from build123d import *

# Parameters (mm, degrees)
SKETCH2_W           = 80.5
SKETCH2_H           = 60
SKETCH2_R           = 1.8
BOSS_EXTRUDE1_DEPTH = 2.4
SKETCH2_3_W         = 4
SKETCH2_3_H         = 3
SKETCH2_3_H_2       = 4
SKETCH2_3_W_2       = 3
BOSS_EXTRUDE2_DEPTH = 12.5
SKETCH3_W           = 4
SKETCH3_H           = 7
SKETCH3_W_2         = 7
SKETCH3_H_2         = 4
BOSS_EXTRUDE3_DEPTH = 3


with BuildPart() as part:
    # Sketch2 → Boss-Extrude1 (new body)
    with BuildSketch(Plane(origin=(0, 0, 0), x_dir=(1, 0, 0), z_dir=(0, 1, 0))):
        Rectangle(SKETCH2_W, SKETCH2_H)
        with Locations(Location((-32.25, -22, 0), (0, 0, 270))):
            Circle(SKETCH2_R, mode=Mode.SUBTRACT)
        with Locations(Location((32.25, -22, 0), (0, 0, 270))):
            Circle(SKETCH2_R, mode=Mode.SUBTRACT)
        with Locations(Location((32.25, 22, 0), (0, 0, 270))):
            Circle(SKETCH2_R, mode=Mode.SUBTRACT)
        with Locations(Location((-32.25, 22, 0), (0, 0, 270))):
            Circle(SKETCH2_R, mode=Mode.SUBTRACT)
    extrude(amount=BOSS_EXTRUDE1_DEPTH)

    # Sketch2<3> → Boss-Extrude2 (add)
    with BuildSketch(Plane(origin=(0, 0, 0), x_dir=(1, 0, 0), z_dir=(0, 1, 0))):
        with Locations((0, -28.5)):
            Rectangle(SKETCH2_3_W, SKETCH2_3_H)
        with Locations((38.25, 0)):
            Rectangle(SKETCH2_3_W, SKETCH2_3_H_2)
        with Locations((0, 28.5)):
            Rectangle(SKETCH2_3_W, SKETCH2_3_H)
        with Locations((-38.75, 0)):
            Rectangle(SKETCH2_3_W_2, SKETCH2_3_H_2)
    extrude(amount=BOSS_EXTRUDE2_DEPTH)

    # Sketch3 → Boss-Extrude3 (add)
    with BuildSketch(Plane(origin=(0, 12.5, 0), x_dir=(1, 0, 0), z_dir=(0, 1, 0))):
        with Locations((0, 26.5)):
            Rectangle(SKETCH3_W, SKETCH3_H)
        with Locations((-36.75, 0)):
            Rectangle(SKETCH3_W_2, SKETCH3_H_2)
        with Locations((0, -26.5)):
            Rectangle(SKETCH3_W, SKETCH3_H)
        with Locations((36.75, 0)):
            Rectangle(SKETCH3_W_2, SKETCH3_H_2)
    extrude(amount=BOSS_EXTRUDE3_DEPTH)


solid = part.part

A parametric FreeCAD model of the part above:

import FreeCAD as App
import Part
import Sketcher
from FreeCAD import Vector
Q = App.Units.Quantity

doc = App.newDocument("Part")
body = doc.addObject("PartDesign::Body", "Body")

# Sketch on XZ plane
sketch1 = body.newObject("Sketcher::SketchObject", "Sketch")
sketch1.AttachmentSupport = (doc.getObject("XZ_Plane"), [""])
sketch1.MapMode = "FlatFace"
sketch1.addGeometry([
    Part.LineSegment(Vector(-40.25, -30, 0), Vector(-40.25, 30, 0)),  # 0
    Part.LineSegment(Vector(-40.25, 30, 0), Vector(40.25, 30, 0)),  # 1
    Part.LineSegment(Vector(40.25, 30, 0), Vector(40.25, -30, 0)),  # 2
    Part.LineSegment(Vector(40.25, -30, 0), Vector(-40.25, -30, 0)),  # 3
    Part.Circle(Vector(-32.25, 22, 0), Vector(0, 0, 1), 1.8),  # 4
    Part.Circle(Vector(32.25, 22, 0), Vector(0, 0, 1), 1.8),  # 5
    Part.Circle(Vector(-32.25, -22, 0), Vector(0, 0, 1), 1.8),  # 6
    Part.Circle(Vector(32.25, -22, 0), Vector(0, 0, 1), 1.8),  # 7
], False)
sketch1.addConstraint([
    Sketcher.Constraint("Coincident", 0, 2, 1, 1),
    Sketcher.Constraint("Coincident", 1, 2, 2, 1),
    Sketcher.Constraint("Coincident", 2, 2, 3, 1),
    Sketcher.Constraint("Coincident", 3, 2, 0, 1),
    Sketcher.Constraint("Vertical", 0),
    Sketcher.Constraint("Horizontal", 1),
    Sketcher.Constraint("Vertical", 2),
    Sketcher.Constraint("Horizontal", 3),
    Sketcher.Constraint("Equal", 4, 5),
    Sketcher.Constraint("Equal", 5, 6),
    Sketcher.Constraint("Equal", 6, 7),
    Sketcher.Constraint("Symmetric", 5, 3, 6, 3, -1, 1),
    Sketcher.Constraint("Symmetric", 4, 3, 7, 3, -1, 1),
    Sketcher.Constraint("Symmetric", 0, 2, 2, 2, -1, 1),
    Sketcher.Constraint("Symmetric", 4, 3, 5, 3, -2),
    Sketcher.Constraint("Diameter", 4, Q("3.6 mm")),
    Sketcher.Constraint("DistanceY", 0, 1, 0, 2, Q("60 mm")),
    Sketcher.Constraint("DistanceX", 1, 1, 1, 2, Q("80.5 mm")),
    Sketcher.Constraint("DistanceY", -1, 1, 4, 3, Q("22 mm")),
    Sketcher.Constraint("DistanceX", 0, 2, 4, 3, Q("8 mm")),
])
pad1 = body.newObject("PartDesign::Pad", "Pad")
pad1.Profile = sketch1
pad1.Length = 2.4
pad1.Reversed = True

# Sketch on XZ plane
sketch2 = body.newObject("Sketcher::SketchObject", "Sketch001")
sketch2.AttachmentSupport = (doc.getObject("XZ_Plane"), [""])
sketch2.MapMode = "FlatFace"
sketch2.addGeometry([
    Part.LineSegment(Vector(-2, 27, 0), Vector(-2, 30, 0)),  # 0
    Part.LineSegment(Vector(-2, 30, 0), Vector(2, 30, 0)),  # 1
    Part.LineSegment(Vector(2, 30, 0), Vector(2, 27, 0)),  # 2
    Part.LineSegment(Vector(2, 27, 0), Vector(-2, 27, 0)),  # 3
    Part.LineSegment(Vector(36.25, -2, 0), Vector(36.25, 2, 0)),  # 4
    Part.LineSegment(Vector(36.25, 2, 0), Vector(40.25, 2, 0)),  # 5
    Part.LineSegment(Vector(40.25, 2, 0), Vector(40.25, -2, 0)),  # 6
    Part.LineSegment(Vector(40.25, -2, 0), Vector(36.25, -2, 0)),  # 7
    Part.LineSegment(Vector(-2, -30, 0), Vector(-2, -27, 0)),  # 8
    Part.LineSegment(Vector(-2, -27, 0), Vector(2, -27, 0)),  # 9
    Part.LineSegment(Vector(2, -27, 0), Vector(2, -30, 0)),  # 10
    Part.LineSegment(Vector(2, -30, 0), Vector(-2, -30, 0)),  # 11
    Part.LineSegment(Vector(-40.25, -2, 0), Vector(-40.25, 2, 0)),  # 12
    Part.LineSegment(Vector(-40.25, 2, 0), Vector(-37.25, 2, 0)),  # 13
    Part.LineSegment(Vector(-37.25, 2, 0), Vector(-37.25, -2, 0)),  # 14
    Part.LineSegment(Vector(-37.25, -2, 0), Vector(-40.25, -2, 0)),  # 15
], False)
sketch2.addConstraint([
    Sketcher.Constraint("Coincident", 0, 2, 1, 1),
    Sketcher.Constraint("Coincident", 1, 2, 2, 1),
    Sketcher.Constraint("Coincident", 2, 2, 3, 1),
    Sketcher.Constraint("Coincident", 3, 2, 0, 1),
    Sketcher.Constraint("Coincident", 4, 2, 5, 1),
    Sketcher.Constraint("Coincident", 5, 2, 6, 1),
    Sketcher.Constraint("Coincident", 6, 2, 7, 1),
    Sketcher.Constraint("Coincident", 7, 2, 4, 1),
    Sketcher.Constraint("Coincident", 8, 2, 9, 1),
    Sketcher.Constraint("Coincident", 9, 2, 10, 1),
    Sketcher.Constraint("Coincident", 10, 2, 11, 1),
    Sketcher.Constraint("Coincident", 11, 2, 8, 1),
    Sketcher.Constraint("Coincident", 12, 2, 13, 1),
    Sketcher.Constraint("Coincident", 13, 2, 14, 1),
    Sketcher.Constraint("Coincident", 14, 2, 15, 1),
    Sketcher.Constraint("Coincident", 15, 2, 12, 1),
    Sketcher.Constraint("Vertical", 0),
    Sketcher.Constraint("Horizontal", 1),
    Sketcher.Constraint("Vertical", 2),
    Sketcher.Constraint("Horizontal", 3),
    Sketcher.Constraint("Vertical", 4),
    Sketcher.Constraint("Horizontal", 5),
    Sketcher.Constraint("Vertical", 6),
    Sketcher.Constraint("Horizontal", 7),
    Sketcher.Constraint("Vertical", 8),
    Sketcher.Constraint("Horizontal", 9),
    Sketcher.Constraint("Vertical", 10),
    Sketcher.Constraint("Horizontal", 11),
    Sketcher.Constraint("Vertical", 12),
    Sketcher.Constraint("Horizontal", 13),
    Sketcher.Constraint("Vertical", 14),
    Sketcher.Constraint("Horizontal", 15),
    Sketcher.Constraint("Symmetric", 2, 2, 8, 2, -1, 1),
    Sketcher.Constraint("Symmetric", 0, 2, 10, 2, -1, 1),
    Sketcher.Constraint("Symmetric", 6, 2, 12, 2, -1, 1),
    Sketcher.Constraint("Horizontal", 5, 2, 12, 2),
    Sketcher.Constraint("Horizontal", 7, 2, 14, 2),
    Sketcher.Constraint("Vertical", 3, 2, 8, 2),
    Sketcher.Constraint("Equal", 3, 5),
    Sketcher.Constraint("Equal", 15, 0),
    Sketcher.Constraint("Equal", 11, 4),
    Sketcher.Constraint("DistanceX", 1, 1, 1, 2, Q("4 mm")),
    Sketcher.Constraint("DistanceX", 13, 1, 13, 2, Q("3 mm")),
    Sketcher.Constraint("DistanceY", -1, 1, 0, 2, Q("30 mm")),
    Sketcher.Constraint("DistanceX", -1, 1, 4, 2, Q("36.25 mm")),
])
pad2 = body.newObject("PartDesign::Pad", "Pad001")
pad2.Profile = sketch2
pad2.Length = 12.5
pad2.Reversed = True

# Sketch on XZ plane
sketch3 = body.newObject("Sketcher::SketchObject", "Sketch002")
sketch3.AttachmentSupport = (doc.getObject("XZ_Plane"), [""])
sketch3.MapMode = "FlatFace"
sketch3.AttachmentOffset = App.Placement(Vector(0, 0, -12.5), App.Rotation())
sketch3.addGeometry([
    Part.LineSegment(Vector(-2, -30, 0), Vector(-2, -23, 0)),  # 0
    Part.LineSegment(Vector(-2, -23, 0), Vector(2, -23, 0)),  # 1
    Part.LineSegment(Vector(2, -23, 0), Vector(2, -30, 0)),  # 2
    Part.LineSegment(Vector(2, -30, 0), Vector(-2, -30, 0)),  # 3
    Part.LineSegment(Vector(-40.25, -2, 0), Vector(-40.25, 2, 0)),  # 4
    Part.LineSegment(Vector(-40.25, 2, 0), Vector(-33.25, 2, 0)),  # 5
    Part.LineSegment(Vector(-33.25, 2, 0), Vector(-33.25, -2, 0)),  # 6
    Part.LineSegment(Vector(-33.25, -2, 0), Vector(-40.25, -2, 0)),  # 7
    Part.LineSegment(Vector(-2, 23, 0), Vector(-2, 30, 0)),  # 8
    Part.LineSegment(Vector(-2, 30, 0), Vector(2, 30, 0)),  # 9
    Part.LineSegment(Vector(2, 30, 0), Vector(2, 23, 0)),  # 10
    Part.LineSegment(Vector(2, 23, 0), Vector(-2, 23, 0)),  # 11
    Part.LineSegment(Vector(33.25, -2, 0), Vector(33.25, 2, 0)),  # 12
    Part.LineSegment(Vector(33.25, 2, 0), Vector(40.25, 2, 0)),  # 13
    Part.LineSegment(Vector(40.25, 2, 0), Vector(40.25, -2, 0)),  # 14
    Part.LineSegment(Vector(40.25, -2, 0), Vector(33.25, -2, 0)),  # 15
], False)
sketch3.addConstraint([
    Sketcher.Constraint("Coincident", 0, 2, 1, 1),
    Sketcher.Constraint("Coincident", 1, 2, 2, 1),
    Sketcher.Constraint("Coincident", 2, 2, 3, 1),
    Sketcher.Constraint("Coincident", 3, 2, 0, 1),
    Sketcher.Constraint("Coincident", 4, 2, 5, 1),
    Sketcher.Constraint("Coincident", 5, 2, 6, 1),
    Sketcher.Constraint("Coincident", 6, 2, 7, 1),
    Sketcher.Constraint("Coincident", 7, 2, 4, 1),
    Sketcher.Constraint("Coincident", 8, 2, 9, 1),
    Sketcher.Constraint("Coincident", 9, 2, 10, 1),
    Sketcher.Constraint("Coincident", 10, 2, 11, 1),
    Sketcher.Constraint("Coincident", 11, 2, 8, 1),
    Sketcher.Constraint("Coincident", 12, 2, 13, 1),
    Sketcher.Constraint("Coincident", 13, 2, 14, 1),
    Sketcher.Constraint("Coincident", 14, 2, 15, 1),
    Sketcher.Constraint("Coincident", 15, 2, 12, 1),
    Sketcher.Constraint("Vertical", 0),
    Sketcher.Constraint("Horizontal", 1),
    Sketcher.Constraint("Vertical", 2),
    Sketcher.Constraint("Horizontal", 3),
    Sketcher.Constraint("Vertical", 4),
    Sketcher.Constraint("Horizontal", 5),
    Sketcher.Constraint("Vertical", 6),
    Sketcher.Constraint("Horizontal", 7),
    Sketcher.Constraint("Vertical", 8),
    Sketcher.Constraint("Horizontal", 9),
    Sketcher.Constraint("Vertical", 10),
    Sketcher.Constraint("Horizontal", 11),
    Sketcher.Constraint("Vertical", 12),
    Sketcher.Constraint("Horizontal", 13),
    Sketcher.Constraint("Vertical", 14),
    Sketcher.Constraint("Horizontal", 15),
    Sketcher.Constraint("Symmetric", 2, 2, 8, 2, -1, 1),
    Sketcher.Constraint("Symmetric", 0, 2, 10, 2, -1, 1),
    Sketcher.Constraint("Symmetric", 6, 2, 12, 2, -1, 1),
    Sketcher.Constraint("Symmetric", 4, 2, 14, 2, -1, 1),
    Sketcher.Constraint("Horizontal", 5, 2, 12, 2),
    Sketcher.Constraint("Vertical", 3, 2, 8, 2),
    Sketcher.Constraint("Equal", 15, 0),
    Sketcher.Constraint("Equal", 11, 4),
    Sketcher.Constraint("DistanceX", 1, 1, 1, 2, Q("4 mm")),
    Sketcher.Constraint("DistanceX", 5, 1, 5, 2, Q("7 mm")),
    Sketcher.Constraint("DistanceY", 0, 2, -1, 1, Q("23 mm")),
    Sketcher.Constraint("DistanceX", 4, 2, -1, 1, Q("40.25 mm")),
])
pad3 = body.newObject("PartDesign::Pad", "Pad002")
pad3.Profile = sketch3
pad3.Length = 3
pad3.Reversed = True

doc.recompute()
